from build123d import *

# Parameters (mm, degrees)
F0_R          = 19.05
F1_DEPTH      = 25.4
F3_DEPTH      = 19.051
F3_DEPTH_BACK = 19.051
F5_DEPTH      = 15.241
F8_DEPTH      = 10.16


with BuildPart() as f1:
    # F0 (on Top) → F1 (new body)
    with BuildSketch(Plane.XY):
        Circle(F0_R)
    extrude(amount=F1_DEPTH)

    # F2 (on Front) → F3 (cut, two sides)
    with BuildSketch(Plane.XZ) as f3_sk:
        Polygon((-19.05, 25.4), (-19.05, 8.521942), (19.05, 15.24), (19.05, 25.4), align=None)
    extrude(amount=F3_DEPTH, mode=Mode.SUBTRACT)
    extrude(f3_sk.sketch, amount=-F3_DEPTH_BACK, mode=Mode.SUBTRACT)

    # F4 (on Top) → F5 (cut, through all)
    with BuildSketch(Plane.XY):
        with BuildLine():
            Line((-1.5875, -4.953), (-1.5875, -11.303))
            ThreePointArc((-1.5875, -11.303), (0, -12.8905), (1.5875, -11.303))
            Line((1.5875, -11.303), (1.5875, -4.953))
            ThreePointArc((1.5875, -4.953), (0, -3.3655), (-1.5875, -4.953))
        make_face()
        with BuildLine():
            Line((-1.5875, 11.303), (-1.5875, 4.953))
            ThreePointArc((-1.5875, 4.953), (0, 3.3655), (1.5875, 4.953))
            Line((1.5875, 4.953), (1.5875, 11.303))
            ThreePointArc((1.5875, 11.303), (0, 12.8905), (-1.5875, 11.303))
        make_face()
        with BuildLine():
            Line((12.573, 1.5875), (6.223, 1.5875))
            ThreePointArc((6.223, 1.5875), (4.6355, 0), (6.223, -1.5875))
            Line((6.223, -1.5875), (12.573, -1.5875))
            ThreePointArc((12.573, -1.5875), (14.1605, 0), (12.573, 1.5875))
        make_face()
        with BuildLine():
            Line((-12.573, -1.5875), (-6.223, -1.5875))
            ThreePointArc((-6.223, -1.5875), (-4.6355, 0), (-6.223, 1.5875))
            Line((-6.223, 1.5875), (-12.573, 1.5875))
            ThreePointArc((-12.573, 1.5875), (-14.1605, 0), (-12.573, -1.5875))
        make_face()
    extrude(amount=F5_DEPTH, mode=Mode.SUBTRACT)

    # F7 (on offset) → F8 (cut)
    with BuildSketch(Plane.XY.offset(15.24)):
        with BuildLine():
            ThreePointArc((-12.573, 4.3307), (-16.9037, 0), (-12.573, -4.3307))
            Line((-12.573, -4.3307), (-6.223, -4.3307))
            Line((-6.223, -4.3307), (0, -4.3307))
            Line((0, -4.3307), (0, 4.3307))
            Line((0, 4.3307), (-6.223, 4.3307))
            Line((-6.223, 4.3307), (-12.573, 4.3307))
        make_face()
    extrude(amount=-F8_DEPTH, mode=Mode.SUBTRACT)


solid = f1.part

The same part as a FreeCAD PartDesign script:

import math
import FreeCAD as App
import Part
import Sketcher
Q = App.Units.Quantity


def add_polygon(sketch, points):
    """Adds a closed chain of lines whose ends are joined by coincident constraints."""
    first, n = sketch.GeometryCount, len(points)
    for a, b in zip(points, points[1:] + points[:1]):
        sketch.addGeometry(Part.LineSegment(App.Vector(*a, 0), App.Vector(*b, 0)), False)
    for i in range(n):
        sketch.addConstraint(Sketcher.Constraint("Coincident", first + i, 2, first + (i + 1) % n, 1))

doc = App.newDocument("Part")
params = doc.addObject("Spreadsheet::Sheet", "Params")
for row, (alias, value) in enumerate([
    ("sketch1_diameter", "1.5 in"),
    ("pad1_length", "1 in"),
    ("sketch2_width", "1.5 in"),
    ("sketch2_height", "0.4 in"),
    ("sketch3_radius", "0.0625 in"),
    ("sketch3_width", "0.25 in"),
    ("sketch4_width", "0.495 in"),
    ("pocket3_length", "0.4 in"),
], start=1):
    params.set(f"A{row}", alias)
    params.set(f"B{row}", "=" + value)
    params.setAlias(f"B{row}", alias)

body = doc.addObject("PartDesign::Body", "Body")

# Sketch on XY plane
sketch1 = doc.addObject("Sketcher::SketchObject", "Sketch")
body.addObject(sketch1)
sketch1.AttachmentSupport = (doc.XY_Plane, [""])
sketch1.MapMode = "FlatFace"
sketch1.addGeometry(Part.Circle(App.Vector(0, 0, 0), App.Vector(0, 0, 1), 19), False)
sketch1.addConstraint([
    Sketcher.Constraint("Coincident", 0, 3, -1, 1),
    Sketcher.Constraint("Diameter", 0, Q("1.5 in")),
])
sketch1.setExpression("Constraints[1]", "Params.sketch1_diameter")
pad1 = doc.addObject("PartDesign::Pad", "Pad")
body.addObject(pad1)
pad1.Profile = sketch1
pad1.setExpression("Length", "Params.pad1_length")

# Sketch on XZ plane
sketch2 = doc.addObject("Sketcher::SketchObject", "Sketch001")
body.addObject(sketch2)
sketch2.AttachmentSupport = (doc.XZ_Plane, [""])
sketch2.MapMode = "FlatFace"
add_polygon(sketch2, [(-19, 25), (-19, 9), (19, 15), (19, 25)])  # lines 0-3
sketch2.addConstraint([
    Sketcher.Constraint("Vertical", 0),
    Sketcher.Constraint("Vertical", 2),
    Sketcher.Constraint("Horizontal", 3),
    Sketcher.Constraint("DistanceX", 3, 2, 3, 1, Q("1.5 in")),
    Sketcher.Constraint("DistanceY", 2, 1, 2, 2, Q("0.4 in")),
    Sketcher.Constraint("DistanceY", -1, 1, 2, 2, Q("1 in")),
    Sketcher.Constraint("Angle", 1, Q("10 deg")),
    Sketcher.Constraint("DistanceX", 0, 2, -1, 1, Q("0.75 in")),
])
sketch2.setExpression("Constraints[7]", "Params.sketch2_width")
sketch2.setExpression("Constraints[8]", "Params.sketch2_height")
pocket1 = doc.addObject("PartDesign::Pocket", "Pocket")
body.addObject(pocket1)
pocket1.Profile = sketch2
pocket1.Type = "ThroughAll"
pocket1.Midplane = True

# Sketch on XY plane
sketch3 = doc.addObject("Sketcher::SketchObject", "Sketch002")
body.addObject(sketch3)
sketch3.AttachmentSupport = (doc.XY_Plane, [""])
sketch3.MapMode = "FlatFace"
sketch3.addGeometry([
    Part.LineSegment(App.Vector(-1.6, -5, 0), App.Vector(-1.6, -11.3, 0)),  # 0
    Part.ArcOfCircle(Part.Circle(App.Vector(0, -11.3, 0), App.Vector(0, 0, 1), 1.6), math.radians(180), math.radians(360)),  # 1
    Part.LineSegment(App.Vector(1.6, -11.3, 0), App.Vector(1.6, -5, 0)),  # 2
    Part.ArcOfCircle(Part.Circle(App.Vector(0, -5, 0), App.Vector(0, 0, 1), 1.6), math.radians(0), math.radians(180)),  # 3
    Part.LineSegment(App.Vector(-1.6, 11.3, 0), App.Vector(-1.6, 5, 0)),  # 4
    Part.ArcOfCircle(Part.Circle(App.Vector(0, 5, 0), App.Vector(0, 0, 1), 1.6), math.radians(180), math.radians(360)),  # 5
    Part.LineSegment(App.Vector(1.6, 5, 0), App.Vector(1.6, 11.3, 0)),  # 6
    Part.ArcOfCircle(Part.Circle(App.Vector(0, 11.3, 0), App.Vector(0, 0, 1), 1.6), math.radians(0), math.radians(180)),  # 7
    Part.LineSegment(App.Vector(12.6, 1.6, 0), App.Vector(6.2, 1.6, 0)),  # 8
    Part.ArcOfCircle(Part.Circle(App.Vector(6.2, 0, 0), App.Vector(0, 0, 1), 1.6), math.radians(90), math.radians(270)),  # 9
    Part.LineSegment(App.Vector(6.2, -1.6, 0), App.Vector(12.6, -1.6, 0)),  # 10
    Part.ArcOfCircle(Part.Circle(App.Vector(12.6, 0, 0), App.Vector(0, 0, 1), 1.6), math.radians(-90), math.radians(90)),  # 11
    Part.LineSegment(App.Vector(-12.6, -1.6, 0), App.Vector(-6.2, -1.6, 0)),  # 12
    Part.ArcOfCircle(Part.Circle(App.Vector(-6.2, 0, 0), App.Vector(0, 0, 1), 1.6), math.radians(-90), math.radians(90)),  # 13
    Part.LineSegment(App.Vector(-6.2, 1.6, 0), App.Vector(-12.6, 1.6, 0)),  # 14
    Part.ArcOfCircle(Part.Circle(App.Vector(-12.6, 0, 0), App.Vector(0, 0, 1), 1.6), math.radians(90), math.radians(270)),  # 15
], False)
sketch3.addConstraint([
    Sketcher.Constraint("Tangent", 0, 2, 1, 1),
    Sketcher.Constraint("Tangent", 1, 2, 2, 1),
    Sketcher.Constraint("Tangent", 2, 2, 3, 1),
    Sketcher.Constraint("Tangent", 3, 2, 0, 1),
    Sketcher.Constraint("Tangent", 4, 2, 5, 1),
    Sketcher.Constraint("Tangent", 5, 2, 6, 1),
    Sketcher.Constraint("Tangent", 6, 2, 7, 1),
    Sketcher.Constraint("Tangent", 7, 2, 4, 1),
    Sketcher.Constraint("Tangent", 8, 2, 9, 1),
    Sketcher.Constraint("Tangent", 9, 2, 10, 1),
    Sketcher.Constraint("Tangent", 10, 2, 11, 1),
    Sketcher.Constraint("Tangent", 11, 2, 8, 1),
    Sketcher.Constraint("Tangent", 12, 2, 13, 1),
    Sketcher.Constraint("Tangent", 13, 2, 14, 1),
    Sketcher.Constraint("Tangent", 14, 2, 15, 1),
    Sketcher.Constraint("Tangent", 15, 2, 12, 1),
    Sketcher.Constraint("Vertical", 0),
    Sketcher.Constraint("Vertical", 2),
    Sketcher.Constraint("Vertical", 4),
    Sketcher.Constraint("Vertical", 6),
    Sketcher.Constraint("Horizontal", 8),
    Sketcher.Constraint("Horizontal", 10),
    Sketcher.Constraint("Horizontal", 12),
    Sketcher.Constraint("Horizontal", 14),
    Sketcher.Constraint("Equal", 3, 5),
    Sketcher.Constraint("Equal", 7, 9),
    Sketcher.Constraint("Equal", 11, 13),
    Sketcher.Constraint("Symmetric", 3, 3, 5, 3, -1, 1),
    Sketcher.Constraint("Symmetric", 9, 3, 13, 3, -1, 1),
    Sketcher.Constraint("Symmetric", 11, 3, 15, 3, -2),
    Sketcher.Constraint("Symmetric", 1, 3, 7, 3, -1),
    Sketcher.Constraint("Equal", 14, 0),
    Sketcher.Constraint("Radius", 1, Q("0.0625 in")),
    Sketcher.Constraint("DistanceX", 8, 2, 8, 1, Q("0.25 in")),
    Sketcher.Constraint("DistanceY", 3, 3, 5, 3, Q("0.39 in")),
    Sketcher.Constraint("DistanceX", 13, 3, 9, 3, Q("0.49 in")),
])
sketch3.setExpression("Constraints[32]", "Params.sketch3_radius")
sketch3.setExpression("Constraints[33]", "Params.sketch3_width")
pocket2 = doc.addObject("PartDesign::Pocket", "Pocket001")
body.addObject(pocket2)
pocket2.Profile = sketch3
pocket2.Type = "ThroughAll"
pocket2.Reversed = True

# Sketch on XY plane
sketch4 = doc.addObject("Sketcher::SketchObject", "Sketch003")
body.addObject(sketch4)
sketch4.AttachmentSupport = (doc.XY_Plane, [""])
sketch4.MapMode = "FlatFace"
sketch4.AttachmentOffset = App.Placement(App.Vector(0, 0, 0.6 * 25.4), App.Rotation())
sketch4.addGeometry([
    Part.ArcOfCircle(Part.Circle(App.Vector(-12.6, 0, 0), App.Vector(0, 0, 1), 4.3), math.radians(90), math.radians(270)),
    Part.LineSegment(App.Vector(-12.6, -4.3, 0), App.Vector(0, -4.3, 0)),
    Part.LineSegment(App.Vector(0, -4.3, 0), App.Vector(0, 4.3, 0)),
    Part.LineSegment(App.Vector(0, 4.3, 0), App.Vector(-12.6, 4.3, 0)),
], False)
sketch4.addConstraint([
    Sketcher.Constraint("Tangent", 0, 2, 1, 1),
    Sketcher.Constraint("Coincident", 1, 2, 2, 1),
    Sketcher.Constraint("Coincident", 2, 2, 3, 1),
    Sketcher.Constraint("Tangent", 3, 2, 0, 1),
    Sketcher.Constraint("Horizontal", 1),
    Sketcher.Constraint("Vertical", 2),
    Sketcher.Constraint("Horizontal", 3),
    Sketcher.Constraint("Symmetric", 1, 2, 2, 2, -1, 1),
    Sketcher.Constraint("Radius", 0, Q("0.1705 in")),
    Sketcher.Constraint("DistanceX", 1, 1, 1, 2, Q("0.495 in")),
])
sketch4.setExpression("Constraints[9]", "Params.sketch4_width")
pocket3 = doc.addObject("PartDesign::Pocket", "Pocket002")
body.addObject(pocket3)
pocket3.Profile = sketch4
pocket3.setExpression("Length", "Params.pocket3_length")

doc.recompute()
